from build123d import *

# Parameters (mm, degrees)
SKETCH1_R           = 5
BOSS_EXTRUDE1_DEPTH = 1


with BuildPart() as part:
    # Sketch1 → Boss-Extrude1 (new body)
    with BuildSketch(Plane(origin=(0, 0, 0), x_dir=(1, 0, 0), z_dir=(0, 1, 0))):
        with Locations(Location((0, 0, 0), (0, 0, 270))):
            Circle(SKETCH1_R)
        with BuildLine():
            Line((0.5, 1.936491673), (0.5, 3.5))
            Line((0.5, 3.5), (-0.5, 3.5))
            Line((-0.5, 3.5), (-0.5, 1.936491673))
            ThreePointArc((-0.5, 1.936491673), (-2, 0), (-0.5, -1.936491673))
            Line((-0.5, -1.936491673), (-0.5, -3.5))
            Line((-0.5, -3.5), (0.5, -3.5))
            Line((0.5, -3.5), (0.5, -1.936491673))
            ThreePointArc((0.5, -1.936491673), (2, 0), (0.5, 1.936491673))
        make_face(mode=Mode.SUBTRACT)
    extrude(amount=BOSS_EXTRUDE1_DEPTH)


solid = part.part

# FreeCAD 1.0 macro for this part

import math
import FreeCAD as App
import Part
import Sketcher
from FreeCAD import Vector
Q = App.Units.Quantity

doc = App.newDocument("Part")
params = doc.addObject("Spreadsheet::Sheet", "Params")
for row, (alias, value) in enumerate([
    ("sketch1_diameter", "10 mm"),
    ("sketch1_radius", "2 mm"),
    ("sketch1_width", "1 mm"),
    ("pad1_length", "1 mm"),
], start=1):
    params.set(f"A{row}", alias)
    params.set(f"B{row}", "=" + value)
    params.setAlias(f"B{row}", alias)

body = doc.addObject("PartDesign::Body", "Body")

# Sketch on XZ plane
sketch1 = body.newObject("Sketcher::SketchObject", "Sketch")
sketch1.AttachmentSupport = (doc.getObject("XZ_Plane"), [""])
sketch1.MapMode = "FlatFace"
sketch1.addGeometry([
    Part.Circle(Vector(0, 0, 0), Vector(0, 0, 1), 5),  # 0
    Part.LineSegment(Vector(0.5, -3.5, 0), Vector(0.5, -1.936492, 0)),  # 1
    Part.ArcOfCircle(Part.Circle(Vector(0, 0, 0), Vector(0, 0, 1), 2), math.radians(-75.522488), math.radians(75.522488)),  # 2
    Part.LineSegment(Vector(0.5, 1.936492, 0), Vector(0.5, 3.5, 0)),  # 3
    Part.LineSegment(Vector(0.5, 3.5, 0), Vector(-0.5, 3.5, 0)),  # 4
    Part.LineSegment(Vector(-0.5, 3.5, 0), Vector(-0.5, 1.936492, 0)),  # 5
    Part.ArcOfCircle(Part.Circle(Vector(0, 0, 0), Vector(0, 0, 1), 2), math.radians(104.477512), math.radians(255.522488)),  # 6
    Part.LineSegment(Vector(-0.5, -1.936492, 0), Vector(-0.5, -3.5, 0)),  # 7
    Part.LineSegment(Vector(-0.5, -3.5, 0), Vector(0.5, -3.5, 0)),  # 8
], False)
sketch1.addConstraint([
    Sketcher.Constraint("Coincident", 1, 2, 2, 1),
    Sketcher.Constraint("Coincident", 2, 2, 3, 1),
    Sketcher.Constraint("Coincident", 3, 2, 4, 1),
    Sketcher.Constraint("Coincident", 4, 2, 5, 1),
    Sketcher.Constraint("Coincident", 5, 2, 6, 1),
    Sketcher.Constraint("Coincident", 6, 2, 7, 1),
    Sketcher.Constraint("Coincident", 7, 2, 8, 1),
    Sketcher.Constraint("Coincident", 8, 2, 1, 1),
    Sketcher.Constraint("Vertical", 1),
    Sketcher.Constraint("Vertical", 3),
    Sketcher.Constraint("Horizontal", 4),
    Sketcher.Constraint("Vertical", 5),
    Sketcher.Constraint("Vertical", 7),
    Sketcher.Constraint("Horizontal", 8),
    Sketcher.Constraint("Coincident", 0, 3, -1, 1),
    Sketcher.Constraint("Coincident", 2, 3, -1, 1),
    Sketcher.Constraint("Coincident", 6, 3, -1, 1),
    Sketcher.Constraint("Equal", 2, 6),
    Sketcher.Constraint("Symmetric", 3, 2, 7, 2, -1, 1),
    Sketcher.Constraint("Horizontal", 2, 2, 5, 2),
    Sketcher.Constraint("Horizontal", 1, 2, 6, 2),
    Sketcher.Constraint("Diameter", 0, Q("10 mm")),
    Sketcher.Constraint("Radius", 2, Q("2 mm")),
    Sketcher.Constraint("DistanceX", 4, 2, 4, 1, Q("1 mm")),
    Sketcher.Constraint("DistanceY", -1, 1, 3, 2, Q("3.5 mm")),
])
sketch1.setExpression("Constraints[21]", "Params.sketch1_diameter")
sketch1.setExpression("Constraints[22]", "Params.sketch1_radius")
sketch1.setExpression("Constraints[23]", "Params.sketch1_width")
pad1 = body.newObject("PartDesign::Pad", "Pad")
pad1.Profile = sketch1
pad1.setExpression("Length", "Params.pad1_length")
pad1.Reversed = True

doc.recompute()
